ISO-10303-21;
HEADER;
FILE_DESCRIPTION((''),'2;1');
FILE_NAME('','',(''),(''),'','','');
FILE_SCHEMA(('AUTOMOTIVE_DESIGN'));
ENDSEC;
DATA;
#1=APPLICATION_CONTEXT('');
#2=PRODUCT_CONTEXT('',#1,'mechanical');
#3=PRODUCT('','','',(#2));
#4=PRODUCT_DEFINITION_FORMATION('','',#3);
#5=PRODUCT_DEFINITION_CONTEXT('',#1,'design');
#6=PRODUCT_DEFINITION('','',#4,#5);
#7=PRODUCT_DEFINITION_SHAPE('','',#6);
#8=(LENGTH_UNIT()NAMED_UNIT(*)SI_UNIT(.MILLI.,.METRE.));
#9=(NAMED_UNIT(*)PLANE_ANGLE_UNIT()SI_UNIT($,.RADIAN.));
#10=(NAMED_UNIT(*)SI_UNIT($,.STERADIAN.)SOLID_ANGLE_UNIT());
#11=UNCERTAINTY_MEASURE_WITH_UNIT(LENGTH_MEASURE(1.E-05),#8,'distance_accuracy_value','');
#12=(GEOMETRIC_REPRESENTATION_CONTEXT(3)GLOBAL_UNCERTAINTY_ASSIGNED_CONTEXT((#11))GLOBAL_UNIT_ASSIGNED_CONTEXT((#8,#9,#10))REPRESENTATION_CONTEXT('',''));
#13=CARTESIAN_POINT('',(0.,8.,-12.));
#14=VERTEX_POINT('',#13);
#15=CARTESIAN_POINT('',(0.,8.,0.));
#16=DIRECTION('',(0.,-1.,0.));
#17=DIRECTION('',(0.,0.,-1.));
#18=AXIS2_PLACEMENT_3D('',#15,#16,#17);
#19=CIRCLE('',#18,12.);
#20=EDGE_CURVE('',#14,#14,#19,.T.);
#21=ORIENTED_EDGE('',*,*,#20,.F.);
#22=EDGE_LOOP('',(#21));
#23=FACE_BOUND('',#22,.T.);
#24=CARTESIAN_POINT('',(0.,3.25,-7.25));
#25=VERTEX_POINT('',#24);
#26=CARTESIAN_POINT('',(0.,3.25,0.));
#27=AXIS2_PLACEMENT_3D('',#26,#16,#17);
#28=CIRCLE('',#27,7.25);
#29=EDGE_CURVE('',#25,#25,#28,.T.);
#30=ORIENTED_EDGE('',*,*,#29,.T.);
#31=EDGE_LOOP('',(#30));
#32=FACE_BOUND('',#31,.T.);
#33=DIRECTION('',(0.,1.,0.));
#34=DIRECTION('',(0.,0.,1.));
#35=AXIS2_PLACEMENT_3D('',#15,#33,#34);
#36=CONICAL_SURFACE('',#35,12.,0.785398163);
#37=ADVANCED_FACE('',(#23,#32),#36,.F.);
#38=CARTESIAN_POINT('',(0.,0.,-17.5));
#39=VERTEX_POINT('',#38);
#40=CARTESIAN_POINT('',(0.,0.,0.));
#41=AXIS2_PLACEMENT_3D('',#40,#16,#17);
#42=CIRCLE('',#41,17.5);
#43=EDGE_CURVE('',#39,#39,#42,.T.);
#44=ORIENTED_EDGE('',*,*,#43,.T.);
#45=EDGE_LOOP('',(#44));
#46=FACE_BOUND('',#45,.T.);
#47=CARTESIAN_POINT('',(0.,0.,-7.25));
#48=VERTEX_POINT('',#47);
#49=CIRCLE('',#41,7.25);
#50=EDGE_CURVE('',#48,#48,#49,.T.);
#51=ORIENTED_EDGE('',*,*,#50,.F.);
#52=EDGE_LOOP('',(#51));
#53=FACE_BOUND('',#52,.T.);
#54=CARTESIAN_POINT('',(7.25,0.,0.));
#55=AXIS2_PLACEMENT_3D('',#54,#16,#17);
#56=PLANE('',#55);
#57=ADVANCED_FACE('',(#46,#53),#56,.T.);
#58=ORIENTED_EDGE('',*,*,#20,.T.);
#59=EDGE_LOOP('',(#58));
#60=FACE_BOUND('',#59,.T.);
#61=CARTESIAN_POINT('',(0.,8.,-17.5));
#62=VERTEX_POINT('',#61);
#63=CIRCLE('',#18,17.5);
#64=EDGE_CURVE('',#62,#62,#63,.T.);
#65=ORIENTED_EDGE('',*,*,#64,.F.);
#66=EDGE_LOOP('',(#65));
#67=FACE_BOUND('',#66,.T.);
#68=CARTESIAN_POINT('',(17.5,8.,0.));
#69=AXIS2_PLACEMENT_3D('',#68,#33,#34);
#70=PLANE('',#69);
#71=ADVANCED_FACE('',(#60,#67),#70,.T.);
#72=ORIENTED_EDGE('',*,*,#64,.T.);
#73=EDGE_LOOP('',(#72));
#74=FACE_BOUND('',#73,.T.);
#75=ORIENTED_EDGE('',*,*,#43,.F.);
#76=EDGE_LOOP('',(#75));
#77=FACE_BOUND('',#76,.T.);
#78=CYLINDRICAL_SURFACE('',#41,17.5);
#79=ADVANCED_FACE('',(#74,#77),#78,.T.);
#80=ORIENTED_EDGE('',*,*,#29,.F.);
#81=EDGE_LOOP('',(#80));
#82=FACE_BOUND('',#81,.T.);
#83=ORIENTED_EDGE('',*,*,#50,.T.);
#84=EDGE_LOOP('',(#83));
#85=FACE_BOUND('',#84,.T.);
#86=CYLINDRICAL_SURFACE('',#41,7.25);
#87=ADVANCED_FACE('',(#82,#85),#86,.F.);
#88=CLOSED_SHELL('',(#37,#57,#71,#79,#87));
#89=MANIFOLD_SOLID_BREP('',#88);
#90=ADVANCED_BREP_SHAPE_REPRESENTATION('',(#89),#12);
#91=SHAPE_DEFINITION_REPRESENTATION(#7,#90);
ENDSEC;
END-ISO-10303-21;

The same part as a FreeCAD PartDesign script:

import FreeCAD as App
import Part
import Sketcher
Q = App.Units.Quantity


def add_polygon(sketch, points):
    """Adds a closed chain of lines whose ends are joined by coincident constraints."""
    first, n = sketch.GeometryCount, len(points)
    for a, b in zip(points, points[1:] + points[:1]):
        sketch.addGeometry(Part.LineSegment(App.Vector(*a, 0), App.Vector(*b, 0)), False)
    for i in range(n):
        sketch.addConstraint(Sketcher.Constraint("Coincident", first + i, 2, first + (i + 1) % n, 1))

doc = App.newDocument("Part")
body = doc.addObject("PartDesign::Body", "Body")

# Sketch on XY plane
sketch1 = body.newObject("Sketcher::SketchObject", "Sketch")
sketch1.AttachmentSupport = (doc.getObject("XY_Plane"), [""])
sketch1.MapMode = "FlatFace"
add_polygon(sketch1, [(7.25, 0), (17.5, 0), (17.5, 8), (12, 8), (7.25, 3.25)])  # lines 0-4
sketch1.addConstraint([
    Sketcher.Constraint("Horizontal", 0),
    Sketcher.Constraint("Vertical", 1),
    Sketcher.Constraint("Horizontal", 2),
    Sketcher.Constraint("Vertical", 4),
    Sketcher.Constraint("PointOnObject", 0, 2, -1),
    Sketcher.Constraint("DistanceY", 1, 1, 1, 2, 8.0),
    Sketcher.Constraint("Angle", 3, Q("-135 deg")),
    Sketcher.Constraint("DistanceX", 2, 2, 2, 1, 5.5),
    Sketcher.Constraint("DistanceX", -1, 1, 2, 2, 12.0),
    Sketcher.Constraint("DistanceX", 0, 1, 0, 2, 10.25),
])
revolution = body.newObject("PartDesign::Revolution", "Revolution")
revolution.Profile = sketch1
revolution.ReferenceAxis = (sketch1, ["V_Axis"])
revolution.Angle = 360

doc.recompute()
